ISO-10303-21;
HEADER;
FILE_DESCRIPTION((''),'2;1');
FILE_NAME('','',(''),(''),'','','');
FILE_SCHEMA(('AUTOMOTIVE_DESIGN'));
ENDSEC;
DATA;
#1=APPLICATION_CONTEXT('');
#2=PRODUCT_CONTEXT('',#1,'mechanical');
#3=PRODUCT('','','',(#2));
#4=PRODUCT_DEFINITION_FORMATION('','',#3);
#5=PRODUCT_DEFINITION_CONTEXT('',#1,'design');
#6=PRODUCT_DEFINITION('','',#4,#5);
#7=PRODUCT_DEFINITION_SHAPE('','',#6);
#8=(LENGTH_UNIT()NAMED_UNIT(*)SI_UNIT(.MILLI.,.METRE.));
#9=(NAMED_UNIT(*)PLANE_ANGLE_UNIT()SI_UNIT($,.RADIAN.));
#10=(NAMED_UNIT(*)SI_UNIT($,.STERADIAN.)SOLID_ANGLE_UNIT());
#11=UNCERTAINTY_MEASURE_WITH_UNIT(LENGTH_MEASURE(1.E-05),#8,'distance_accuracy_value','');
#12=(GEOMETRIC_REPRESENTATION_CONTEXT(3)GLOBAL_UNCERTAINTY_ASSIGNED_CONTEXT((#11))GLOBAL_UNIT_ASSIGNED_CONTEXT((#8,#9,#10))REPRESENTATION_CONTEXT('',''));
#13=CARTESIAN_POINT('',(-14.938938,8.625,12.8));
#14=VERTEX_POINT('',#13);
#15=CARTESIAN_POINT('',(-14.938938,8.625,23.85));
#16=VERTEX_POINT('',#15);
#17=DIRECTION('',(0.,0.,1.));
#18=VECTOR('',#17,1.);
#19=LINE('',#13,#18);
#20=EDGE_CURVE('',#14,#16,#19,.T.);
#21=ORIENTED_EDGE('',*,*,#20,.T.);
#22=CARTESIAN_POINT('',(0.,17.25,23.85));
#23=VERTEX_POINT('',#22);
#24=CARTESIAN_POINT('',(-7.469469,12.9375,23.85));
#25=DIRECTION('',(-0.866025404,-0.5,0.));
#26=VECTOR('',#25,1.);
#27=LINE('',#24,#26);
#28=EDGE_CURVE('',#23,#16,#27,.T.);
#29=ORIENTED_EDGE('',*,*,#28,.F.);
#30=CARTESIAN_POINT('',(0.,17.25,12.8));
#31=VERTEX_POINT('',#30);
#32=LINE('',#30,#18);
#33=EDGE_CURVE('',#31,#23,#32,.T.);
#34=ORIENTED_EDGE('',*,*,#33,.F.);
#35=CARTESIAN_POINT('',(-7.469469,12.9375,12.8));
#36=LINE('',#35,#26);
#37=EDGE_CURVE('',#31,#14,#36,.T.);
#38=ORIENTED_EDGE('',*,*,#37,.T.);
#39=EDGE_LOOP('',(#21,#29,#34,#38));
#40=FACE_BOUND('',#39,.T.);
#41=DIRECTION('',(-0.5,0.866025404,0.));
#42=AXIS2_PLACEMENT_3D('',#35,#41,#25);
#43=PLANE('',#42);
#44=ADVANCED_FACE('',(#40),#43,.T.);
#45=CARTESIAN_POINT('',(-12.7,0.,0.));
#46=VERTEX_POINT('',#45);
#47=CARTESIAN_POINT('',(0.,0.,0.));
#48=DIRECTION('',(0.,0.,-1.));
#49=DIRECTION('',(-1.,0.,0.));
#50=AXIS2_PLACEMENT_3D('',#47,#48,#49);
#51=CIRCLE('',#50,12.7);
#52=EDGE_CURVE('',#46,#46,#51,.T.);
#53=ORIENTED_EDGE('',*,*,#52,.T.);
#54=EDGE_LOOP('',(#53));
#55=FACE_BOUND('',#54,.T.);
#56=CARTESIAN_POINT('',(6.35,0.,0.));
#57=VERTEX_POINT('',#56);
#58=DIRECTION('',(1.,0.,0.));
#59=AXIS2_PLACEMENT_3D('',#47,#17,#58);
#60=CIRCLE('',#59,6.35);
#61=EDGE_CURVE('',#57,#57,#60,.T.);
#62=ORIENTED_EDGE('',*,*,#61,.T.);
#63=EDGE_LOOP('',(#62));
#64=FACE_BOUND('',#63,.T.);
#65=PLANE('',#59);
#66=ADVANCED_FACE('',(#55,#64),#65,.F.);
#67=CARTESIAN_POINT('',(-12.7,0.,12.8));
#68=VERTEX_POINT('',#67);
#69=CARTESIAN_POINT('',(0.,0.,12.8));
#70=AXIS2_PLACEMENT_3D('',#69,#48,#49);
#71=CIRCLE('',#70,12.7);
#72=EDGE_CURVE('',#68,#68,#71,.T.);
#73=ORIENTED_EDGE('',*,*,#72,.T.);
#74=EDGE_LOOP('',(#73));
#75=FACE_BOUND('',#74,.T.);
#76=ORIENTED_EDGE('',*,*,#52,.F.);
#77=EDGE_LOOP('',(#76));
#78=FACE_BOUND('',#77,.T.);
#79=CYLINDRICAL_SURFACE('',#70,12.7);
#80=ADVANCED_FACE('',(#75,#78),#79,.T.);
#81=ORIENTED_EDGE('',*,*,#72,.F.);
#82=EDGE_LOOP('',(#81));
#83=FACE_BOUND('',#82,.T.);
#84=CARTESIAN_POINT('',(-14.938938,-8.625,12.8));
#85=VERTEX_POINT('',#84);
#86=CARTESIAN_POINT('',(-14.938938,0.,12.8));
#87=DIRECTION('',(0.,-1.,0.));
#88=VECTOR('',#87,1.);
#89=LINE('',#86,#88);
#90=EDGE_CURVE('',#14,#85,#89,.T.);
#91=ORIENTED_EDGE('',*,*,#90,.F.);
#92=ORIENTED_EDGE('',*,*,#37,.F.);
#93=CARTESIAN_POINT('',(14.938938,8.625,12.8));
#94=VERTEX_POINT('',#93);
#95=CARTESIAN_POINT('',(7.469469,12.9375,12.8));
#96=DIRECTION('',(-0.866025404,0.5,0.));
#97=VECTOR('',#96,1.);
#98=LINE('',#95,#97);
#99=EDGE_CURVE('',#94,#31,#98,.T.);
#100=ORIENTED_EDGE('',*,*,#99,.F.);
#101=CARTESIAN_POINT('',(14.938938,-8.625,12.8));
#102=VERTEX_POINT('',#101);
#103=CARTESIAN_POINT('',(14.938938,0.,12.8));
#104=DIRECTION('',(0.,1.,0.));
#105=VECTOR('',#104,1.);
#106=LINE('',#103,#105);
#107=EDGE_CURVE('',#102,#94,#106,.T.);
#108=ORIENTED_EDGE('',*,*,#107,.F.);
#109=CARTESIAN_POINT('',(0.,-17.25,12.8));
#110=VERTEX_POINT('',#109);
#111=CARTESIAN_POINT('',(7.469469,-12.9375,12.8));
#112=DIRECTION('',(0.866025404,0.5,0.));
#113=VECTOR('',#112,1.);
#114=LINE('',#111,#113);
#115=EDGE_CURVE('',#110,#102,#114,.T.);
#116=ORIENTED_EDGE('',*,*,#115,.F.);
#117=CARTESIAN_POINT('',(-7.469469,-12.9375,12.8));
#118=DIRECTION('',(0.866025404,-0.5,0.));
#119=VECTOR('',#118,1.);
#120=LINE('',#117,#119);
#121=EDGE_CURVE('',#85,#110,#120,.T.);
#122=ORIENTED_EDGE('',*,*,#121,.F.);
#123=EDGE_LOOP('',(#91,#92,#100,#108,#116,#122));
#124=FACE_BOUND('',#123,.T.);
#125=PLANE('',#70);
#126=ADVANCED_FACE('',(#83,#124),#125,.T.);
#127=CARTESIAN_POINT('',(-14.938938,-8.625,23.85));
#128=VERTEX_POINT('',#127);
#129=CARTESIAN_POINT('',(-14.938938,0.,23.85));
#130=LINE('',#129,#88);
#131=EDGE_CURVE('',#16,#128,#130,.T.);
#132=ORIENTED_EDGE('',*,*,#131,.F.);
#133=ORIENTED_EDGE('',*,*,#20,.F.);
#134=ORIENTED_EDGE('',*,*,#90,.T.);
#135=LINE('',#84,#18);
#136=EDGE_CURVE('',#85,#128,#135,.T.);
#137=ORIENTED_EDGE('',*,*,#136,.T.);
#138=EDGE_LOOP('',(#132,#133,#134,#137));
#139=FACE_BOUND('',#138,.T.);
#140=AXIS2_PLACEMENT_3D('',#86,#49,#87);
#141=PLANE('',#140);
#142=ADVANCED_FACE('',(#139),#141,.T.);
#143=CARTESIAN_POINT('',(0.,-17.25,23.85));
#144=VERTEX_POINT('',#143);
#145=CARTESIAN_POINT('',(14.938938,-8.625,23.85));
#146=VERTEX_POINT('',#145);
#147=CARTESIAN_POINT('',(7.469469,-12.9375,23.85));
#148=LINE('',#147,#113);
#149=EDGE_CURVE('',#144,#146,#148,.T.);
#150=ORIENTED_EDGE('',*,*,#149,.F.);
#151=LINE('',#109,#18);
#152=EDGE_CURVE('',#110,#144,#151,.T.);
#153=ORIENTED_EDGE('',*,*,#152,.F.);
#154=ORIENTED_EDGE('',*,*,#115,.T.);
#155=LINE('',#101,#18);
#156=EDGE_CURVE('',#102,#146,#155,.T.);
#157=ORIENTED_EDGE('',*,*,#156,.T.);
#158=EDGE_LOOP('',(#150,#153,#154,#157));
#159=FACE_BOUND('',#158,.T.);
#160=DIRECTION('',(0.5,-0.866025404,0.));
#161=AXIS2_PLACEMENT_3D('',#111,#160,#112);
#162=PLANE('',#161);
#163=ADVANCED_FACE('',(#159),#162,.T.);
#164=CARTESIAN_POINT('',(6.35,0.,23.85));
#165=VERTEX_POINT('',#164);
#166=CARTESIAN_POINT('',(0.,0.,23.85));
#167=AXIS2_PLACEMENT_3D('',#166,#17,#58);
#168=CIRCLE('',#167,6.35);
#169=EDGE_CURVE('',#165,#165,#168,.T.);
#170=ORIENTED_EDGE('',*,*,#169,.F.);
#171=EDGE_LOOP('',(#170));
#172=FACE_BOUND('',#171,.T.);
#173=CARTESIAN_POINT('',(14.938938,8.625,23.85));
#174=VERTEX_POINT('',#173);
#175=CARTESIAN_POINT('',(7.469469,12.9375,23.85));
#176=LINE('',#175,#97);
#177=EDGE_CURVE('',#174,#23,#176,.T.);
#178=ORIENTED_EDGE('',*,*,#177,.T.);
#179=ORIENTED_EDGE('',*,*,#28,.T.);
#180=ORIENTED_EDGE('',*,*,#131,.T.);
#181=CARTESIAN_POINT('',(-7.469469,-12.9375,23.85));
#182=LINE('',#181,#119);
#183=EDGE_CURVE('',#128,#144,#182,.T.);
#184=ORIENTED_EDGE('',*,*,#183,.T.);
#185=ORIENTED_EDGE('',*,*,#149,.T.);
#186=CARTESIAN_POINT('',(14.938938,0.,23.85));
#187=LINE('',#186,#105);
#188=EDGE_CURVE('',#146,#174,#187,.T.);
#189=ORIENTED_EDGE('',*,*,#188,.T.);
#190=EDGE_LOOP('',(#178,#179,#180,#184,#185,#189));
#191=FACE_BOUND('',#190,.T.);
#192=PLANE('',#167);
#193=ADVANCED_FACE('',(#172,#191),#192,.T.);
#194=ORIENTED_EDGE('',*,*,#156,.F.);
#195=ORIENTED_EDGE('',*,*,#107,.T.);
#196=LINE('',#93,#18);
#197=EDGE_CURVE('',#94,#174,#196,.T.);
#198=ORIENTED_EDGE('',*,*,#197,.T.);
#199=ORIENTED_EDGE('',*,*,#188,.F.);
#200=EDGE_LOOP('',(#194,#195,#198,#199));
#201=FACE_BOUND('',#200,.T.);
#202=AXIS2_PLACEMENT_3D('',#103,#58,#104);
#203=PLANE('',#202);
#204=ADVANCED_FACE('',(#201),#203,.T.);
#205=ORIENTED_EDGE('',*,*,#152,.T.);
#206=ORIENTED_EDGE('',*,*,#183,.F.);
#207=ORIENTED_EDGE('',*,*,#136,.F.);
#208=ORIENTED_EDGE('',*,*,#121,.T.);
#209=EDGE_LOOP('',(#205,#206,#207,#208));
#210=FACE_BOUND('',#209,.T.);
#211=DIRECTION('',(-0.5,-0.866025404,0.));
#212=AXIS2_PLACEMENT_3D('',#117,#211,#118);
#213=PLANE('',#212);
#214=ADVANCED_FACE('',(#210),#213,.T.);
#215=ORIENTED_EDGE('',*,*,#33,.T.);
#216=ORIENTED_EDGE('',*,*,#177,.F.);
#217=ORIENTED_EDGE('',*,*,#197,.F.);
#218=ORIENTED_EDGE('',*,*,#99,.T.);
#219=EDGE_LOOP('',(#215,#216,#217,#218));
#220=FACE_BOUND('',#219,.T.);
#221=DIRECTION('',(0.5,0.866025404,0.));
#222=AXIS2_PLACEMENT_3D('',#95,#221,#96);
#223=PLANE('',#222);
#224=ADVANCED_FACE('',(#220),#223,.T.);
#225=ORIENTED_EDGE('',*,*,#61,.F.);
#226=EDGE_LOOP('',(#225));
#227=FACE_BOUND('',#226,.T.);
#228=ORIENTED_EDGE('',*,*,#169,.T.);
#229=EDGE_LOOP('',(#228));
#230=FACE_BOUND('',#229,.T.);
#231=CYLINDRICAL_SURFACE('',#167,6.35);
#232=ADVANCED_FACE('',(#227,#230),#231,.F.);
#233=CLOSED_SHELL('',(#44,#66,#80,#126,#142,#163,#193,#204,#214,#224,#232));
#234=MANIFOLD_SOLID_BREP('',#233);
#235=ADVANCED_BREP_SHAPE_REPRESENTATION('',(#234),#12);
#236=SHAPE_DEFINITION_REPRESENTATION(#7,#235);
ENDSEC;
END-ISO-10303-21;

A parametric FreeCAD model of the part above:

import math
import FreeCAD as App
import Part
import Sketcher

V = App.Vector
Q = App.Units.Quantity

doc = App.newDocument("Part")
body = doc.addObject("PartDesign::Body", "Body")

sketch1 = body.newObject("Sketcher::SketchObject", "Sketch")
sketch1.AttachmentSupport = (doc.getObject("XY_Plane"), [""])
sketch1.MapMode = "FlatFace"
sketch1.addGeometry(Part.Circle(V(0, 0, 0), V(0, 0, 1), 17), False)
sketch1.addConstraint([
    Sketcher.Constraint("Coincident", 0, 3, -1, 1),
    Sketcher.Constraint("Diameter", 0, Q("34.5 mm")),
])
pad1 = body.newObject("PartDesign::Pad", "Pad")
pad1.Profile = sketch1
pad1.Length = 23.85

sketch2 = body.newObject("Sketcher::SketchObject", "Sketch001")
sketch2.AttachmentSupport = (doc.getObject("XY_Plane"), [""])
sketch2.MapMode = "FlatFace"
sketch2.AttachmentOffset = App.Placement(V(0, 0, 12.8), App.Rotation())
sketch2.addGeometry([
    Part.LineSegment(V(-15, 9, 0), V(0, 17, 0)),
    Part.ArcOfCircle(Part.Circle(V(0, 0, 0), V(0, 0, 1), 17), math.radians(90), math.radians(150)),
    Part.LineSegment(V(-15, -9, 0), V(-15, 9, 0)),
    Part.ArcOfCircle(Part.Circle(V(0, 0, 0), V(0, 0, 1), 17), math.radians(150), math.radians(210)),
    Part.LineSegment(V(0, -17, 0), V(-15, -9, 0)),
    Part.ArcOfCircle(Part.Circle(V(0, 0, 0), V(0, 0, 1), 17), math.radians(-150), math.radians(-90)),
    Part.ArcOfCircle(Part.Circle(V(0, 0, 0), V(0, 0, 1), 17), math.radians(-90), math.radians(-30)),
    Part.LineSegment(V(15, -9, 0), V(0, -17, 0)),
    Part.ArcOfCircle(Part.Circle(V(0, 0, 0), V(0, 0, 1), 17), math.radians(0), math.radians(30)),
    Part.LineSegment(V(15, 9, 0), V(15, -9, 0)),
    Part.ArcOfCircle(Part.Circle(V(0, 0, 0), V(0, 0, 1), 17), math.radians(-30), math.radians(0)),
    Part.ArcOfCircle(Part.Circle(V(0, 0, 0), V(0, 0, 1), 17), math.radians(30), math.radians(90)),
    Part.LineSegment(V(0, 17, 0), V(15, 9, 0)),
], False)
sketch2.addConstraint([
    Sketcher.Constraint("Coincident", 0, 1, 1, 2),
    Sketcher.Constraint("Coincident", 1, 1, 0, 2),
    Sketcher.Constraint("Coincident", 2, 1, 3, 2),
    Sketcher.Constraint("Coincident", 3, 1, 2, 2),
    Sketcher.Constraint("Coincident", 4, 1, 5, 2),
    Sketcher.Constraint("Coincident", 5, 1, 4, 2),
    Sketcher.Constraint("Coincident", 6, 1, 7, 2),
    Sketcher.Constraint("Coincident", 7, 1, 6, 2),
    Sketcher.Constraint("Coincident", 8, 2, 9, 1),
    Sketcher.Constraint("Coincident", 9, 2, 10, 1),
    Sketcher.Constraint("Tangent", 10, 2, 8, 1),
    Sketcher.Constraint("Coincident", 11, 1, 12, 2),
    Sketcher.Constraint("Coincident", 12, 1, 11, 2),
    Sketcher.Constraint("Vertical", 2),
    Sketcher.Constraint("Vertical", 9),
    Sketcher.Constraint("Coincident", 1, 3, -1, 1),
    Sketcher.Constraint("Coincident", 3, 3, -1, 1),
    Sketcher.Constraint("Coincident", 5, 3, -1, 1),
    Sketcher.Constraint("Coincident", 6, 3, -1, 1),
    Sketcher.Constraint("Coincident", 8, 3, -1, 1),
    Sketcher.Constraint("Coincident", 11, 3, -1, 1),
    Sketcher.Constraint("Coincident", 3, 1, 0, 1),
    Sketcher.Constraint("Coincident", 5, 1, 2, 1),
    Sketcher.Constraint("Coincident", 6, 1, 4, 1),
    Sketcher.Constraint("Coincident", 9, 2, 7, 1),
    Sketcher.Constraint("Coincident", 11, 1, 8, 2),
    Sketcher.Constraint("Coincident", 12, 1, 1, 1),
    Sketcher.Constraint("PointOnObject", 1, 1, -2),
    Sketcher.Constraint("PointOnObject", 4, 1, -2),
    Sketcher.Constraint("PointOnObject", 10, 2, -1),
    Sketcher.Constraint("Parallel", 0, 7),
    Sketcher.Constraint("Angle", 0, Q("30 deg")),
    Sketcher.Constraint("Radius", 1, Q("17.25 mm")),
])
pocket1 = body.newObject("PartDesign::Pocket", "Pocket")
pocket1.Profile = sketch2
pocket1.Length = 11.05
pocket1.Reversed = True

sketch3 = body.newObject("Sketcher::SketchObject", "Sketch002")
sketch3.AttachmentSupport = (doc.getObject("XY_Plane"), [""])
sketch3.MapMode = "FlatFace"
sketch3.AttachmentOffset = App.Placement(V(0, 0, 23.85), App.Rotation())
sketch3.addGeometry(Part.Circle(V(0, 0, 0), V(0, 0, 1), 6), False)
sketch3.addConstraint([
    Sketcher.Constraint("Coincident", 0, 3, -1, 1),
    Sketcher.Constraint("Diameter", 0, Q("12.7 mm")),
])
doc.recompute()
hole = body.newObject("PartDesign::Hole", "Hole")
hole.Profile = sketch3
hole.ThreadType = "None"
hole.Diameter = 12.7
hole.DepthType = "ThroughAll"

sketch4 = body.newObject("Sketcher::SketchObject", "Sketch003")
sketch4.AttachmentSupport = (doc.getObject("XY_Plane"), [""])
sketch4.MapMode = "FlatFace"
sketch4.addGeometry([
    Part.Circle(V(0, 0, 0), V(0, 0, 1), 17),
    Part.Circle(V(0, 0, 0), V(0, 0, 1), 13),
], False)
sketch4.addConstraint([
    Sketcher.Constraint("Coincident", 0, 3, -1, 1),
    Sketcher.Constraint("Coincident", 1, 3, -1, 1),
    Sketcher.Constraint("Diameter", 0, Q("34.5 mm")),
    Sketcher.Constraint("Diameter", 1, Q("25.4 mm")),
])
pocket2 = body.newObject("PartDesign::Pocket", "Pocket001")
pocket2.Profile = sketch4
pocket2.Length = 12.8
pocket2.Reversed = True

doc.recompute()
